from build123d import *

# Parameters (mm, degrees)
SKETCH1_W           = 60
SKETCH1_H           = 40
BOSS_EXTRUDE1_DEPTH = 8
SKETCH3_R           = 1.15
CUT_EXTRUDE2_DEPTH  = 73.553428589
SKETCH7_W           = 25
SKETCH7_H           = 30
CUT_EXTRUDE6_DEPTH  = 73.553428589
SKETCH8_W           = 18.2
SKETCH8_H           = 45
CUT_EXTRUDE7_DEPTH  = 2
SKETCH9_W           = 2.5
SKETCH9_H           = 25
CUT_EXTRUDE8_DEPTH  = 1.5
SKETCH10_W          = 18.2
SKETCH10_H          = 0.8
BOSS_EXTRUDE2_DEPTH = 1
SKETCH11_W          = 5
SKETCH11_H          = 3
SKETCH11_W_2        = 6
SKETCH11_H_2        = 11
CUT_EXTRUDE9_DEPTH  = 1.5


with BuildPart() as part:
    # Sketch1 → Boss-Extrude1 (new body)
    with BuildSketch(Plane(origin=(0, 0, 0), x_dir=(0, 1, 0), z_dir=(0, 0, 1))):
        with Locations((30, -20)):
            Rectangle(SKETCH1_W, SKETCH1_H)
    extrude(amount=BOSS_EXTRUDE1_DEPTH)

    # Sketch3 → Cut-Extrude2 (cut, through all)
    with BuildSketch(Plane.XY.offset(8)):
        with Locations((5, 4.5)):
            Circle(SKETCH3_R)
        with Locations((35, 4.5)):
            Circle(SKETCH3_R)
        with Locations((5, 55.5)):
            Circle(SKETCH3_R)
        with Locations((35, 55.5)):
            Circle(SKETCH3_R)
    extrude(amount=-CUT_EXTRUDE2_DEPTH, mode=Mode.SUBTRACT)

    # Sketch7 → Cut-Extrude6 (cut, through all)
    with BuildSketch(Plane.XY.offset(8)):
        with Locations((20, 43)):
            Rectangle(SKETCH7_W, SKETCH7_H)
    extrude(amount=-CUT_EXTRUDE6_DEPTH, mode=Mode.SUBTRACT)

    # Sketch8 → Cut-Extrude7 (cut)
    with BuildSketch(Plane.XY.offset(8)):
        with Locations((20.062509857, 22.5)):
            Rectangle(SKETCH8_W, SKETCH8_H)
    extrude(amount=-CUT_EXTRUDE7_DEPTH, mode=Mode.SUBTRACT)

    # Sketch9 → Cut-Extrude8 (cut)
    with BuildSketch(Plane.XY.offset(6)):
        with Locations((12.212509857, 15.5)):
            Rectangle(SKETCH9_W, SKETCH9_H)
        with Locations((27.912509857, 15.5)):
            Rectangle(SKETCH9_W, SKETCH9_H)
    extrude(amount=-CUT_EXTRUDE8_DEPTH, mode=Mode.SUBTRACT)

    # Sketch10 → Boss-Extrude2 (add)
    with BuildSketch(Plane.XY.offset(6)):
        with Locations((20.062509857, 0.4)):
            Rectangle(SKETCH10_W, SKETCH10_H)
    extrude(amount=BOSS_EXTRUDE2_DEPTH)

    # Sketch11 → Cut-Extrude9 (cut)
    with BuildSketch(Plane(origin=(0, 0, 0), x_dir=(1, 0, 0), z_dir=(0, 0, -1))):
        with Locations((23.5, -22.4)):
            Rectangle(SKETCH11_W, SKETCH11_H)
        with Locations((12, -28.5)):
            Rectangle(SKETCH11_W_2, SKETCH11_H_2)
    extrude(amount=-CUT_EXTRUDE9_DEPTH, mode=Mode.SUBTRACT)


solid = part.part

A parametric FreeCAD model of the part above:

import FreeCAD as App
import Part
import Sketcher

doc = App.newDocument("Part")
body = doc.addObject("PartDesign::Body", "Body")

# Sketch on XY plane
sketch1 = body.newObject("Sketcher::SketchObject", "Sketch")
sketch1.AttachmentSupport = (doc.getObject("XY_Plane"), [""])
sketch1.MapMode = "FlatFace"
sketch1.addGeometry([
    Part.LineSegment(App.Vector(0, 0, 0), App.Vector(40, 0, 0)),
    Part.LineSegment(App.Vector(40, 0, 0), App.Vector(40, 60, 0)),
    Part.LineSegment(App.Vector(40, 60, 0), App.Vector(0, 60, 0)),
    Part.LineSegment(App.Vector(0, 60, 0), App.Vector(0, 0, 0)),
], False)
sketch1.addConstraint([
    Sketcher.Constraint("Coincident", 0, 2, 1, 1),
    Sketcher.Constraint("Coincident", 1, 2, 2, 1),
    Sketcher.Constraint("Coincident", 2, 2, 3, 1),
    Sketcher.Constraint("Coincident", 3, 2, 0, 1),
    Sketcher.Constraint("Horizontal", 0),
    Sketcher.Constraint("Vertical", 1),
    Sketcher.Constraint("Horizontal", 2),
    Sketcher.Constraint("Vertical", 3),
    Sketcher.Constraint("Coincident", 3, 2, -1, 1),
    Sketcher.Constraint("DistanceX", 0, 1, 0, 2, 40.0),
    Sketcher.Constraint("DistanceY", 1, 1, 1, 2, 60.0),
])
pad1 = body.newObject("PartDesign::Pad", "Pad")
pad1.Profile = sketch1
pad1.Length = 8

# Sketch on XY plane
sketch2 = body.newObject("Sketcher::SketchObject", "Sketch001")
sketch2.AttachmentSupport = (doc.getObject("XY_Plane"), [""])
sketch2.MapMode = "FlatFace"
sketch2.AttachmentOffset = App.Placement(App.Vector(0, 0, 8), App.Rotation())
sketch2.addGeometry([
    Part.Circle(App.Vector(5, 4.5, 0), App.Vector(0, 0, 1), 1.1),
    Part.Circle(App.Vector(35, 4.5, 0), App.Vector(0, 0, 1), 1.1),
    Part.Circle(App.Vector(5, 55.5, 0), App.Vector(0, 0, 1), 1.1),
    Part.Circle(App.Vector(35, 55.5, 0), App.Vector(0, 0, 1), 1.1),
], False)
sketch2.addConstraint([
    Sketcher.Constraint("Equal", 0, 1),
    Sketcher.Constraint("Equal", 1, 2),
    Sketcher.Constraint("Equal", 2, 3),
    Sketcher.Constraint("Horizontal", 0, 3, 1, 3),
    Sketcher.Constraint("Horizontal", 2, 3, 3, 3),
    Sketcher.Constraint("Vertical", 0, 3, 2, 3),
    Sketcher.Constraint("Vertical", 1, 3, 3, 3),
    Sketcher.Constraint("Diameter", 0, 2.3),
    Sketcher.Constraint("DistanceX", -1, 1, 0, 3, 5.0),
    Sketcher.Constraint("DistanceX", -1, 1, 1, 3, 35.0),
    Sketcher.Constraint("DistanceY", 0, 3, 2, 3, 51.0),
    Sketcher.Constraint("DistanceY", -1, 1, 0, 3, 4.5),
])
pocket1 = body.newObject("PartDesign::Pocket", "Pocket")
pocket1.Profile = sketch2
pocket1.Type = "ThroughAll"

# Sketch on XY plane
sketch3 = body.newObject("Sketcher::SketchObject", "Sketch002")
sketch3.AttachmentSupport = (doc.getObject("XY_Plane"), [""])
sketch3.MapMode = "FlatFace"
sketch3.AttachmentOffset = App.Placement(App.Vector(0, 0, 8), App.Rotation())
sketch3.addGeometry([
    Part.LineSegment(App.Vector(8, 58, 0), App.Vector(8, 28, 0)),
    Part.LineSegment(App.Vector(8, 28, 0), App.Vector(32, 28, 0)),
    Part.LineSegment(App.Vector(32, 28, 0), App.Vector(32, 58, 0)),
    Part.LineSegment(App.Vector(32, 58, 0), App.Vector(8, 58, 0)),
], False)
sketch3.addConstraint([
    Sketcher.Constraint("Coincident", 0, 2, 1, 1),
    Sketcher.Constraint("Coincident", 1, 2, 2, 1),
    Sketcher.Constraint("Coincident", 2, 2, 3, 1),
    Sketcher.Constraint("Coincident", 3, 2, 0, 1),
    Sketcher.Constraint("Vertical", 0),
    Sketcher.Constraint("Horizontal", 1),
    Sketcher.Constraint("Vertical", 2),
    Sketcher.Constraint("Horizontal", 3),
    Sketcher.Constraint("DistanceX", 1, 1, 1, 2, 25.0),
    Sketcher.Constraint("DistanceY", 0, 2, 0, 1, 30.0),
    Sketcher.Constraint("DistanceY", -1, 1, 0, 2, 28.0),
    Sketcher.Constraint("DistanceX", -1, 1, 0, 2, 7.5),
])
pocket2 = body.newObject("PartDesign::Pocket", "Pocket001")
pocket2.Profile = sketch3
pocket2.Type = "ThroughAll"

# Sketch on XY plane
sketch4 = body.newObject("Sketcher::SketchObject", "Sketch003")
sketch4.AttachmentSupport = (doc.getObject("XY_Plane"), [""])
sketch4.MapMode = "FlatFace"
sketch4.AttachmentOffset = App.Placement(App.Vector(0, 0, 8), App.Rotation())
sketch4.addGeometry([
    Part.LineSegment(App.Vector(11, 45, 0), App.Vector(11, 0, 0)),
    Part.LineSegment(App.Vector(11, 0, 0), App.Vector(29, 0, 0)),
    Part.LineSegment(App.Vector(29, 0, 0), App.Vector(29, 45, 0)),
    Part.LineSegment(App.Vector(29, 45, 0), App.Vector(11, 45, 0)),
], False)
sketch4.addConstraint([
    Sketcher.Constraint("Coincident", 0, 2, 1, 1),
    Sketcher.Constraint("Coincident", 1, 2, 2, 1),
    Sketcher.Constraint("Coincident", 2, 2, 3, 1),
    Sketcher.Constraint("Coincident", 3, 2, 0, 1),
    Sketcher.Constraint("Vertical", 0),
    Sketcher.Constraint("Horizontal", 1),
    Sketcher.Constraint("Vertical", 2),
    Sketcher.Constraint("Horizontal", 3),
    Sketcher.Constraint("PointOnObject", 0, 2, -1),
    Sketcher.Constraint("DistanceY", 0, 2, 0, 1, 45.0),
    Sketcher.Constraint("DistanceX", 1, 1, 1, 2, 18.2),
    Sketcher.Constraint("DistanceX", -1, 1, 0, 2, 10.96251),
])
pocket3 = body.newObject("PartDesign::Pocket", "Pocket002")
pocket3.Profile = sketch4
pocket3.Length = 2

# Sketch on XY plane
sketch5 = body.newObject("Sketcher::SketchObject", "Sketch004")
sketch5.AttachmentSupport = (doc.getObject("XY_Plane"), [""])
sketch5.MapMode = "FlatFace"
sketch5.AttachmentOffset = App.Placement(App.Vector(0, 0, 6), App.Rotation())
sketch5.addGeometry([
    Part.LineSegment(App.Vector(11, 28, 0), App.Vector(11, 3, 0)),  # 0
    Part.LineSegment(App.Vector(11, 3, 0), App.Vector(13.5, 3, 0)),  # 1
    Part.LineSegment(App.Vector(13.5, 3, 0), App.Vector(13.5, 28, 0)),  # 2
    Part.LineSegment(App.Vector(13.5, 28, 0), App.Vector(11, 28, 0)),  # 3
    Part.LineSegment(App.Vector(26.7, 28, 0), App.Vector(26.7, 3, 0)),  # 4
    Part.LineSegment(App.Vector(26.7, 3, 0), App.Vector(29.2, 3, 0)),  # 5
    Part.LineSegment(App.Vector(29.2, 3, 0), App.Vector(29.2, 28, 0)),  # 6
    Part.LineSegment(App.Vector(29.2, 28, 0), App.Vector(26.7, 28, 0)),  # 7
], False)
sketch5.addConstraint([
    Sketcher.Constraint("Coincident", 0, 2, 1, 1),
    Sketcher.Constraint("Coincident", 1, 2, 2, 1),
    Sketcher.Constraint("Coincident", 2, 2, 3, 1),
    Sketcher.Constraint("Coincident", 3, 2, 0, 1),
    Sketcher.Constraint("Coincident", 4, 2, 5, 1),
    Sketcher.Constraint("Coincident", 5, 2, 6, 1),
    Sketcher.Constraint("Coincident", 6, 2, 7, 1),
    Sketcher.Constraint("Coincident", 7, 2, 4, 1),
    Sketcher.Constraint("Vertical", 0),
    Sketcher.Constraint("Horizontal", 1),
    Sketcher.Constraint("Vertical", 2),
    Sketcher.Constraint("Horizontal", 3),
    Sketcher.Constraint("Vertical", 4),
    Sketcher.Constraint("Horizontal", 5),
    Sketcher.Constraint("Vertical", 6),
    Sketcher.Constraint("Horizontal", 7),
    Sketcher.Constraint("Horizontal", 1, 2, 4, 2),
    Sketcher.Constraint("Horizontal", 3, 2, 6, 2),
    Sketcher.Constraint("Equal", 3, 5),
    Sketcher.Constraint("DistanceY", 0, 2, 0, 1, 25.0),
    Sketcher.Constraint("DistanceX", 1, 1, 1, 2, 2.5),
    Sketcher.Constraint("DistanceY", -1, 1, 0, 2, 3.0),
    Sketcher.Constraint("DistanceX", 1, 2, 4, 2, 13.2),
    Sketcher.Constraint("DistanceX", -1, 1, 0, 2, 10.96251),
])
pocket4 = body.newObject("PartDesign::Pocket", "Pocket003")
pocket4.Profile = sketch5
pocket4.Length = 1.5

# Sketch on XY plane
sketch6 = body.newObject("Sketcher::SketchObject", "Sketch005")
sketch6.AttachmentSupport = (doc.getObject("XY_Plane"), [""])
sketch6.MapMode = "FlatFace"
sketch6.AttachmentOffset = App.Placement(App.Vector(0, 0, 6), App.Rotation())
sketch6.addGeometry([
    Part.LineSegment(App.Vector(11, 0.8, 0), App.Vector(11, 0, 0)),
    Part.LineSegment(App.Vector(11, 0, 0), App.Vector(29.2, 0, 0)),
    Part.LineSegment(App.Vector(29.2, 0, 0), App.Vector(29.2, 0.8, 0)),
    Part.LineSegment(App.Vector(29.2, 0.8, 0), App.Vector(11, 0.8, 0)),
], False)
sketch6.addConstraint([
    Sketcher.Constraint("Coincident", 0, 2, 1, 1),
    Sketcher.Constraint("Coincident", 1, 2, 2, 1),
    Sketcher.Constraint("Coincident", 2, 2, 3, 1),
    Sketcher.Constraint("Coincident", 3, 2, 0, 1),
    Sketcher.Constraint("Vertical", 0),
    Sketcher.Constraint("Horizontal", 1),
    Sketcher.Constraint("Vertical", 2),
    Sketcher.Constraint("Horizontal", 3),
    Sketcher.Constraint("PointOnObject", 0, 2, -1),
    Sketcher.Constraint("DistanceX", 1, 1, 1, 2, 18.2),
    Sketcher.Constraint("DistanceY", 0, 2, 0, 1, 0.8),
    Sketcher.Constraint("DistanceX", -1, 1, 0, 2, 10.96251),
])
pad2 = body.newObject("PartDesign::Pad", "Pad001")
pad2.Profile = sketch6
pad2.Length = 1

# Sketch on XY plane
sketch7 = body.newObject("Sketcher::SketchObject", "Sketch006")
sketch7.AttachmentSupport = (doc.getObject("XY_Plane"), [""])
sketch7.MapMode = "FlatFace"
sketch7.addGeometry([
    Part.LineSegment(App.Vector(21, 20.9, 0), App.Vector(21, 23.9, 0)),  # 0
    Part.LineSegment(App.Vector(21, 23.9, 0), App.Vector(26, 23.9, 0)),  # 1
    Part.LineSegment(App.Vector(26, 23.9, 0), App.Vector(26, 20.9, 0)),  # 2
    Part.LineSegment(App.Vector(26, 20.9, 0), App.Vector(21, 20.9, 0)),  # 3
    Part.LineSegment(App.Vector(9, 23, 0), App.Vector(9, 34, 0)),  # 4
    Part.LineSegment(App.Vector(9, 34, 0), App.Vector(15, 34, 0)),  # 5
    Part.LineSegment(App.Vector(15, 34, 0), App.Vector(15, 23, 0)),  # 6
    Part.LineSegment(App.Vector(15, 23, 0), App.Vector(9, 23, 0)),  # 7
], False)
sketch7.addConstraint([
    Sketcher.Constraint("Coincident", 0, 2, 1, 1),
    Sketcher.Constraint("Coincident", 1, 2, 2, 1),
    Sketcher.Constraint("Coincident", 2, 2, 3, 1),
    Sketcher.Constraint("Coincident", 3, 2, 0, 1),
    Sketcher.Constraint("Coincident", 4, 2, 5, 1),
    Sketcher.Constraint("Coincident", 5, 2, 6, 1),
    Sketcher.Constraint("Coincident", 6, 2, 7, 1),
    Sketcher.Constraint("Coincident", 7, 2, 4, 1),
    Sketcher.Constraint("Vertical", 0),
    Sketcher.Constraint("Horizontal", 1),
    Sketcher.Constraint("Vertical", 2),
    Sketcher.Constraint("Horizontal", 3),
    Sketcher.Constraint("Vertical", 4),
    Sketcher.Constraint("Horizontal", 5),
    Sketcher.Constraint("Vertical", 6),
    Sketcher.Constraint("Horizontal", 7),
    Sketcher.Constraint("DistanceX", 1, 1, 1, 2, 5.0),
    Sketcher.Constraint("DistanceX", 5, 1, 5, 2, 6.0),
    Sketcher.Constraint("DistanceY", 0, 1, 0, 2, 3.0),
    Sketcher.Constraint("DistanceY", 4, 1, 4, 2, 11.0),
    Sketcher.Constraint("DistanceX", -1, 1, 0, 2, 21.0),
    Sketcher.Constraint("DistanceX", -1, 1, 4, 2, 9.0),
    Sketcher.Constraint("DistanceY", -1, 1, 4, 2, 34.0),
    Sketcher.Constraint("DistanceY", -1, 1, 0, 2, 23.9),
])
pocket5 = body.newObject("PartDesign::Pocket", "Pocket004")
pocket5.Profile = sketch7
pocket5.Length = 1.5
pocket5.Reversed = True

doc.recompute()
